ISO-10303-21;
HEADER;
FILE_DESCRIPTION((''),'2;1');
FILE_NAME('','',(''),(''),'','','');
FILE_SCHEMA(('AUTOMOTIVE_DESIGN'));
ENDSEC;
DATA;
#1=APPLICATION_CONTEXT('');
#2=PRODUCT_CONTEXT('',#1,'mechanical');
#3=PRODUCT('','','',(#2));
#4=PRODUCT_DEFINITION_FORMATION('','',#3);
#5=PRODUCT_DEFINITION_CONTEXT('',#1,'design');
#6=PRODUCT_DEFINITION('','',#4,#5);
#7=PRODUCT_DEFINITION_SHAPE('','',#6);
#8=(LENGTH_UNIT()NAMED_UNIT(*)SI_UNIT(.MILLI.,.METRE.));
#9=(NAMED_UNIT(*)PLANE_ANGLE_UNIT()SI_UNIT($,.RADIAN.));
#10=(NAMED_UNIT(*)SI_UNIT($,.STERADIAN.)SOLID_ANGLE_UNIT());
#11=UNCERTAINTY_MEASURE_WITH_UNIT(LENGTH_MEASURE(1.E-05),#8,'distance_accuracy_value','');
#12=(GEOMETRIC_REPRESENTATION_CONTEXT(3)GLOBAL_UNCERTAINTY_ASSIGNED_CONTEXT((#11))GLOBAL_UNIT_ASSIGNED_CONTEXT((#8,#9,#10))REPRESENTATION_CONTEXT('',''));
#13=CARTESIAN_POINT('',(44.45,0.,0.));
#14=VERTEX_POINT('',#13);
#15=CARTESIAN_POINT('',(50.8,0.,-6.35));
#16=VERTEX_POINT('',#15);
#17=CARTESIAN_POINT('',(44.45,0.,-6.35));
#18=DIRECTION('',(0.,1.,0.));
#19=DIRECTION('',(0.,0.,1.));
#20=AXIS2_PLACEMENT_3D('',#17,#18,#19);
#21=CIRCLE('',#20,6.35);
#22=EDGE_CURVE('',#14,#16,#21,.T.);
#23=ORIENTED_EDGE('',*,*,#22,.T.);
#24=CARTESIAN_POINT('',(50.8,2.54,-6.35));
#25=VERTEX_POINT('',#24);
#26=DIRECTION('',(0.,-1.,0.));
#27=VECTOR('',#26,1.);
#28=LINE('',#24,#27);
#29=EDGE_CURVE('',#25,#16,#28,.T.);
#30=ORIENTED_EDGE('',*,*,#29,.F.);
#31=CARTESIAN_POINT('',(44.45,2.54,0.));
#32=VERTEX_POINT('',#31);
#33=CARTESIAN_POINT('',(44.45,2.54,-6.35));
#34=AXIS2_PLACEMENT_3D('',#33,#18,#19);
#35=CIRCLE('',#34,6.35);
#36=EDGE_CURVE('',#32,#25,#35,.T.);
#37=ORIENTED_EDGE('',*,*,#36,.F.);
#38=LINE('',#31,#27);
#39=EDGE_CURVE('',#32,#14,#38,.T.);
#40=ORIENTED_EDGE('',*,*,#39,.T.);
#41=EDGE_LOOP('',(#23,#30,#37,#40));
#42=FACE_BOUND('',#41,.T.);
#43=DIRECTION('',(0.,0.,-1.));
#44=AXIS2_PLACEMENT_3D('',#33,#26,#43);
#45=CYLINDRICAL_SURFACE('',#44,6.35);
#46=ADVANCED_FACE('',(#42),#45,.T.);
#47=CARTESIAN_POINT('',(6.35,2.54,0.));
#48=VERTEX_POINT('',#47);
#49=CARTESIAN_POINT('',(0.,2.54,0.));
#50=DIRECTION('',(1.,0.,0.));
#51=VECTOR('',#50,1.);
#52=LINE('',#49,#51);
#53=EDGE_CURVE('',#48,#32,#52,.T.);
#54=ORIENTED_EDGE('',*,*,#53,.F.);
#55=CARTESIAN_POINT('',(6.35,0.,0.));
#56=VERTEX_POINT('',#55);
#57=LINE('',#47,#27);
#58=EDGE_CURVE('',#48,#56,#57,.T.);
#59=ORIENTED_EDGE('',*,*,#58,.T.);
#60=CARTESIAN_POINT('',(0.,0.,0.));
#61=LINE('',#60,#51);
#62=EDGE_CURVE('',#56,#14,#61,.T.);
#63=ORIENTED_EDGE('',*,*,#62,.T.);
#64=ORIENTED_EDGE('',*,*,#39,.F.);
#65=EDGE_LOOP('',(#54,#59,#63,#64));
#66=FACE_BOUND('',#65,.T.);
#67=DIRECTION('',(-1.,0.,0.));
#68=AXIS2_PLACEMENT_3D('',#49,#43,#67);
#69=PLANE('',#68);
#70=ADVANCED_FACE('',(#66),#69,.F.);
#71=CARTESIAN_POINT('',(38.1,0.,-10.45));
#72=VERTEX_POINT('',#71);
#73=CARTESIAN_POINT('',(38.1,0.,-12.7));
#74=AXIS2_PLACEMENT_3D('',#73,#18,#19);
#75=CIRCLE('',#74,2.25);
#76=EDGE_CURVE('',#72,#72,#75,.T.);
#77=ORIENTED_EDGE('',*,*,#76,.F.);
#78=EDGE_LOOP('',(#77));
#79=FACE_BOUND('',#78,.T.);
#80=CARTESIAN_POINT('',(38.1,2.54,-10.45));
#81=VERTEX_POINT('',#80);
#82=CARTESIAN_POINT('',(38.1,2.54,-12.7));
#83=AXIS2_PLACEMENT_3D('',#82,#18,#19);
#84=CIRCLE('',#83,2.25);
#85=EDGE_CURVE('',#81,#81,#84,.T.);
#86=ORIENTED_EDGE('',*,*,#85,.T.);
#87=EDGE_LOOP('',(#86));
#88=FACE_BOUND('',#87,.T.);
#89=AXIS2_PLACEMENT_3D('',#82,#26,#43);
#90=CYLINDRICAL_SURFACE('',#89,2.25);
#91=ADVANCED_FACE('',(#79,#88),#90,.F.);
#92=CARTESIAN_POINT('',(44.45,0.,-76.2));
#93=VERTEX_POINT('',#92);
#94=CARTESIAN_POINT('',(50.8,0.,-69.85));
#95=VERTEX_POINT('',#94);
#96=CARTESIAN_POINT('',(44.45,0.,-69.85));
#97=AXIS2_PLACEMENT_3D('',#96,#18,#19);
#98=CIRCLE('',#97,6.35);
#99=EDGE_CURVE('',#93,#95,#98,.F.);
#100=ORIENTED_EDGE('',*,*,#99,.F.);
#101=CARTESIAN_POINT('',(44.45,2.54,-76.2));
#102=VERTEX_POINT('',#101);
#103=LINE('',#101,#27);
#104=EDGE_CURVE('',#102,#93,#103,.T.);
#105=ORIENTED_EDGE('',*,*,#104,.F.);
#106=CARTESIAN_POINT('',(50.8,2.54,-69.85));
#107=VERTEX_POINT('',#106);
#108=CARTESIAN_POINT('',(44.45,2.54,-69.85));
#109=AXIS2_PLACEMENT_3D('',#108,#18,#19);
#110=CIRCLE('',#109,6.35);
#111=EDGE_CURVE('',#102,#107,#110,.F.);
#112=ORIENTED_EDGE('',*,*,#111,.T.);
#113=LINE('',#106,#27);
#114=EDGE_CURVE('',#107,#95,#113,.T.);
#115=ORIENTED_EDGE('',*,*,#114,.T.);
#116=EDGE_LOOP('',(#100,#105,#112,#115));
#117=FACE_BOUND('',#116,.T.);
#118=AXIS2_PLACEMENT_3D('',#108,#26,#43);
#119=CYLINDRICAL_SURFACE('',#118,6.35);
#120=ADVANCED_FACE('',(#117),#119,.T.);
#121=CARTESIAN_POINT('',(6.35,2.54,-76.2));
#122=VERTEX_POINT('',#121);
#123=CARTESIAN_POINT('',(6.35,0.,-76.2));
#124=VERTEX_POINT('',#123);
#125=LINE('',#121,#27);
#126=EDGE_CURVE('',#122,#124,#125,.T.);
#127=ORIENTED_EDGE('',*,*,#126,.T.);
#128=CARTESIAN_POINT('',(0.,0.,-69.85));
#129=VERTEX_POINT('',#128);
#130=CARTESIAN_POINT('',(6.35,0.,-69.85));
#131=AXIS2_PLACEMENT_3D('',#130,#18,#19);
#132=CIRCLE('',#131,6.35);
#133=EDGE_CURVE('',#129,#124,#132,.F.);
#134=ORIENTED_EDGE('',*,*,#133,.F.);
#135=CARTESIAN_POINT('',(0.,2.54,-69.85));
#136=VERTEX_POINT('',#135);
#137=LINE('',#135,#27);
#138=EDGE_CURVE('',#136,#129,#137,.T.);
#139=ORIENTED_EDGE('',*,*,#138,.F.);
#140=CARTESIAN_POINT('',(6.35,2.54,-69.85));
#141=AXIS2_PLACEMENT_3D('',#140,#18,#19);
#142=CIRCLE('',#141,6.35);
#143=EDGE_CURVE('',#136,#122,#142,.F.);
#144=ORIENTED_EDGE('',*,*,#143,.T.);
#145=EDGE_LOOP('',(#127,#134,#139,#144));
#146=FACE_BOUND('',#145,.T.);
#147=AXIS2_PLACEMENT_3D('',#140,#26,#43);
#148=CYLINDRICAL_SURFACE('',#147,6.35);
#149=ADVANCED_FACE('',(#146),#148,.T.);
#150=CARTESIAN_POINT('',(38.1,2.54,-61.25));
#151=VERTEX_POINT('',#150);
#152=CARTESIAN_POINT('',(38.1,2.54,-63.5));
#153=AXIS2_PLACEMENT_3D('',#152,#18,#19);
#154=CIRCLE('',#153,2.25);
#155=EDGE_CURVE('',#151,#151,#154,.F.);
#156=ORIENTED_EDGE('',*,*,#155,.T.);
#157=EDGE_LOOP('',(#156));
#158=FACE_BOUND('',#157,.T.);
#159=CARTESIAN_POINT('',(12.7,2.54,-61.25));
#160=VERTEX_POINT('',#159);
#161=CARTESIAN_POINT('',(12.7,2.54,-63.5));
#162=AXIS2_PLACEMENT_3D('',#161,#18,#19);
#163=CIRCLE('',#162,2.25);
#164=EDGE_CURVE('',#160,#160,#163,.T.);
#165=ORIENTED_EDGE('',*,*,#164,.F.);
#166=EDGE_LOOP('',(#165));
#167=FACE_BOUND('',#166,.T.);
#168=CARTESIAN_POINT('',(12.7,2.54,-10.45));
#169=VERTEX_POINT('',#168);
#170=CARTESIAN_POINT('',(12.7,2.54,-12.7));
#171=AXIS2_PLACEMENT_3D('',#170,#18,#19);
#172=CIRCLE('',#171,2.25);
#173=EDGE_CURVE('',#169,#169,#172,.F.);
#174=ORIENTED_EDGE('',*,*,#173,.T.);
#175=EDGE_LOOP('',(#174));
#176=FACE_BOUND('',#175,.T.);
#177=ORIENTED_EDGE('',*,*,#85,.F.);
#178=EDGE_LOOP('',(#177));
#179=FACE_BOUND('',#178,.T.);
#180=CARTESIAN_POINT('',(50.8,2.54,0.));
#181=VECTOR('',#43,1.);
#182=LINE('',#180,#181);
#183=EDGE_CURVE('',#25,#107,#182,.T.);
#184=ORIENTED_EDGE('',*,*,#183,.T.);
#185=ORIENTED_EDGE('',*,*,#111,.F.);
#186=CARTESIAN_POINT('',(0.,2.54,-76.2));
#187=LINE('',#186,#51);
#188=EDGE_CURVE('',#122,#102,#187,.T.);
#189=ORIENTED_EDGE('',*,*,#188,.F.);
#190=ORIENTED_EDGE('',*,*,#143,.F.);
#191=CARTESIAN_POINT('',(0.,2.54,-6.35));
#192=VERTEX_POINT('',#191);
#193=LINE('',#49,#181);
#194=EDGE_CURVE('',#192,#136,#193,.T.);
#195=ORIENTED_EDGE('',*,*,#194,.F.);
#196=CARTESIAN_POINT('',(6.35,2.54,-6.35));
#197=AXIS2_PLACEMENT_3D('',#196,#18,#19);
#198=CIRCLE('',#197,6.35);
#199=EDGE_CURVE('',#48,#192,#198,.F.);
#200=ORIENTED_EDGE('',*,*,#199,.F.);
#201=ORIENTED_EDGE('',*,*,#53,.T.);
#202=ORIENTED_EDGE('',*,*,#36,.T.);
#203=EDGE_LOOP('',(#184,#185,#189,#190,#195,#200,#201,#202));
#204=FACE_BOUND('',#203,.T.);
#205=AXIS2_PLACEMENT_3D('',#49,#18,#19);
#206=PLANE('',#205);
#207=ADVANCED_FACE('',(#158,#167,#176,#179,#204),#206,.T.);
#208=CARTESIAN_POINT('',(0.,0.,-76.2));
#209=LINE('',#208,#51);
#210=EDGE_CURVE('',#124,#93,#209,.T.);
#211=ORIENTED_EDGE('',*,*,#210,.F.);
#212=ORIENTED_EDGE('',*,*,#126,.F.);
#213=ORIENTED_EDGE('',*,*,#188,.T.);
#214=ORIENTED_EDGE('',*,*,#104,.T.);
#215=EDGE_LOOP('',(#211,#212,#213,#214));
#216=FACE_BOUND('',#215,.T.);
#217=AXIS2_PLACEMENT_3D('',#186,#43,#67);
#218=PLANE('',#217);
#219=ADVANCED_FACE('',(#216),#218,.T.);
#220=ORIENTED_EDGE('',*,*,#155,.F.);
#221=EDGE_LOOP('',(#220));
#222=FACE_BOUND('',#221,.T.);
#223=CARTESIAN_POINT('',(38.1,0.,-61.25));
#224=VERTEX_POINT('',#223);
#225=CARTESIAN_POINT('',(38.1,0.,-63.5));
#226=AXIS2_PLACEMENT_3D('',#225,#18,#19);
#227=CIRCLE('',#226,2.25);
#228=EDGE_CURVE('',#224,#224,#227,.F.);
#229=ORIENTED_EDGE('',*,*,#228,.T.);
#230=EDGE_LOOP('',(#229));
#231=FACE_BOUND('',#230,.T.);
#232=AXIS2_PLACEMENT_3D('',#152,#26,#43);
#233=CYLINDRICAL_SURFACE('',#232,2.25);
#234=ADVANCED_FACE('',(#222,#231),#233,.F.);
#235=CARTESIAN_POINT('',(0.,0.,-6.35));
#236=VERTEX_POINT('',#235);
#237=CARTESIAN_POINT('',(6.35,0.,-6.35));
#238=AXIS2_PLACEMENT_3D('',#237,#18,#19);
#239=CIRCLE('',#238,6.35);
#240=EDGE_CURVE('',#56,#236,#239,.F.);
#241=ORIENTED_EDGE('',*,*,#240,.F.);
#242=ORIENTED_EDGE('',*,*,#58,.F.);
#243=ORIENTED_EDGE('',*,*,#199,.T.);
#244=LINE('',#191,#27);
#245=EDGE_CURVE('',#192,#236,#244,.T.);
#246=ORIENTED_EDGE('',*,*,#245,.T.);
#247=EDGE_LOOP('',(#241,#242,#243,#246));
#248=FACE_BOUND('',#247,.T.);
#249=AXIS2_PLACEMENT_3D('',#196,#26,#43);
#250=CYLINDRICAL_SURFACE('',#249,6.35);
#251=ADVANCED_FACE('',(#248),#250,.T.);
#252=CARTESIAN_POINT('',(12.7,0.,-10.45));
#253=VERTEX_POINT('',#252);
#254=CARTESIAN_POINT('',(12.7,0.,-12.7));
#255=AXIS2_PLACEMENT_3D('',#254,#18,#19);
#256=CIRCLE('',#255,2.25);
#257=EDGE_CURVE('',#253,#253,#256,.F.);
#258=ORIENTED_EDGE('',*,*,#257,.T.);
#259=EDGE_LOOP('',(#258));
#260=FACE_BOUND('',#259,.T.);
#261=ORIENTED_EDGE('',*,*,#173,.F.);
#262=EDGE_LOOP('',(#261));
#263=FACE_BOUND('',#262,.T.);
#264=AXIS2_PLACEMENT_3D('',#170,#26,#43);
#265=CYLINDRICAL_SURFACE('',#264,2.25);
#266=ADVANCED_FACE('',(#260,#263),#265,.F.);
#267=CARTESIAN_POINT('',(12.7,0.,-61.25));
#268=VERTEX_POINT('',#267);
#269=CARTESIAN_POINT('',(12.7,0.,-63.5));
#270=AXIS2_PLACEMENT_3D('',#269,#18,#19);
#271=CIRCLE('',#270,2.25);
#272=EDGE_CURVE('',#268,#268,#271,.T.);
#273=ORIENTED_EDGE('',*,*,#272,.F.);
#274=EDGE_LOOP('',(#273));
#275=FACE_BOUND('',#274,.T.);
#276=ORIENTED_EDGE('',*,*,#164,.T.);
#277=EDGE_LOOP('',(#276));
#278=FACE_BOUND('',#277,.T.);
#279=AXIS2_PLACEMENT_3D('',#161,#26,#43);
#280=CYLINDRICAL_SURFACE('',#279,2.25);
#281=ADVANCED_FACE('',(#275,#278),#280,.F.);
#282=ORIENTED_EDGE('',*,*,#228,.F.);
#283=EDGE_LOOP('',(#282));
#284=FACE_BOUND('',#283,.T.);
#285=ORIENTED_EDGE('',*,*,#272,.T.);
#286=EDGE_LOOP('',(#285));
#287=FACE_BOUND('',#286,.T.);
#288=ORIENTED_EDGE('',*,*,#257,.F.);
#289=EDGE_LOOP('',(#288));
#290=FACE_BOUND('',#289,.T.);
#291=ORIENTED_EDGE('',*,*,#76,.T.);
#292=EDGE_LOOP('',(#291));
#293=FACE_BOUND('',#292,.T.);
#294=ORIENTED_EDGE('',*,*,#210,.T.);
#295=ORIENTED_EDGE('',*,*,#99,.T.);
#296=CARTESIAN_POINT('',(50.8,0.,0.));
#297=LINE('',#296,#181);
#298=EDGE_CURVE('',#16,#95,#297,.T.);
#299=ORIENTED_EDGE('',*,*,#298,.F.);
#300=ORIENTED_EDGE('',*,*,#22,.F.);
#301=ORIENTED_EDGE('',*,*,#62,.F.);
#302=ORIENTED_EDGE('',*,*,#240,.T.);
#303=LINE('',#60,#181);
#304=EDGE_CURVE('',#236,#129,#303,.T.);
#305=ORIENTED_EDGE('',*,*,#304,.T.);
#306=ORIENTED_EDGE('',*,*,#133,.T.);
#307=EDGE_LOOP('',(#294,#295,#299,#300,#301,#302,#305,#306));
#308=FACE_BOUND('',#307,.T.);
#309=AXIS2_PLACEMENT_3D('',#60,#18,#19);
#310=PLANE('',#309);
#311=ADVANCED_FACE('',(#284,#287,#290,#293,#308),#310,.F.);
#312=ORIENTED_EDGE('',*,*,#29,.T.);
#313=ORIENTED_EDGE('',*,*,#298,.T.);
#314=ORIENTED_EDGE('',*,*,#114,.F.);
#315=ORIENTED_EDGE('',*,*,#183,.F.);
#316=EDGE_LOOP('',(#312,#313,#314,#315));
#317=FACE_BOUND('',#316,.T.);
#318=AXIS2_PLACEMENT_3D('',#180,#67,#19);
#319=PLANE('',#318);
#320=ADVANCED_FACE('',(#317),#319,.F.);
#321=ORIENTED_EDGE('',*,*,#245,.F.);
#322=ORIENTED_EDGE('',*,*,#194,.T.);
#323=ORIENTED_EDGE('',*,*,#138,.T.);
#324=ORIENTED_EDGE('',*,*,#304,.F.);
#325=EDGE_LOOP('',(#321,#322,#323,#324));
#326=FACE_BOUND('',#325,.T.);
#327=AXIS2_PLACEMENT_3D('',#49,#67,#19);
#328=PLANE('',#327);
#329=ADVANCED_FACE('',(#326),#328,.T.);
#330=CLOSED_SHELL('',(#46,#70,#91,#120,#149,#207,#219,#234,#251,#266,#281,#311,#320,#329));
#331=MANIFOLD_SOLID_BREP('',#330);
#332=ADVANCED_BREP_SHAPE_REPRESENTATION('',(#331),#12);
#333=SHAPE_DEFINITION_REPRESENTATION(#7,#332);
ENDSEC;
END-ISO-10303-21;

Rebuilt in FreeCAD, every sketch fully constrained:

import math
import FreeCAD as App
import Part
import Sketcher
from FreeCAD import Vector
Q = App.Units.Quantity

doc = App.newDocument("Part")
body = doc.addObject("PartDesign::Body", "Body")

# Sketch on XZ plane
sketch1 = body.newObject("Sketcher::SketchObject", "Sketch")
sketch1.AttachmentSupport = (doc.getObject("XZ_Plane"), [""])
sketch1.MapMode = "FlatFace"
sketch1.addGeometry([
    Part.LineSegment(Vector(6.3, 0, 0), Vector(44.5, 0, 0)),  # 0
    Part.ArcOfCircle(Part.Circle(Vector(44.5, -6.3, 0), Vector(0, 0, 1), 6.3), math.radians(0), math.radians(90)),  # 1
    Part.LineSegment(Vector(50.8, -6.3, 0), Vector(50.8, -69.8, 0)),  # 2
    Part.ArcOfCircle(Part.Circle(Vector(44.5, -69.9, 0), Vector(0, 0, 1), 6.3), math.radians(-90), math.radians(0)),  # 3
    Part.LineSegment(Vector(44.5, -76.2, 0), Vector(6.3, -76.2, 0)),  # 4
    Part.ArcOfCircle(Part.Circle(Vector(6.3, -69.9, 0), Vector(0, 0, 1), 6.3), math.radians(180), math.radians(270)),  # 5
    Part.LineSegment(Vector(0, -69.8, 0), Vector(0, -6.3, 0)),  # 6
    Part.ArcOfCircle(Part.Circle(Vector(6.3, -6.3, 0), Vector(0, 0, 1), 6.3), math.radians(90), math.radians(180)),  # 7
    Part.Circle(Vector(12.7, -12.7, 0), Vector(0, 0, 1), 2.2),  # 8
    Part.Circle(Vector(38.1, -12.7, 0), Vector(0, 0, 1), 2.2),  # 9
    Part.Circle(Vector(12.7, -63.5, 0), Vector(0, 0, 1), 2.2),  # 10
    Part.Circle(Vector(38.1, -63.5, 0), Vector(0, 0, 1), 2.2),  # 11
], False)
sketch1.addConstraint([
    Sketcher.Constraint("Tangent", 0, 2, 1, 2),
    Sketcher.Constraint("Tangent", 1, 1, 2, 1),
    Sketcher.Constraint("Tangent", 2, 2, 3, 2),
    Sketcher.Constraint("Tangent", 3, 1, 4, 1),
    Sketcher.Constraint("Tangent", 4, 2, 5, 2),
    Sketcher.Constraint("Tangent", 5, 1, 6, 1),
    Sketcher.Constraint("Tangent", 6, 2, 7, 2),
    Sketcher.Constraint("Tangent", 7, 1, 0, 1),
    Sketcher.Constraint("Horizontal", 0),
    Sketcher.Constraint("Vertical", 2),
    Sketcher.Constraint("Horizontal", 4),
    Sketcher.Constraint("Vertical", 6),
    Sketcher.Constraint("Equal", 1, 3),
    Sketcher.Constraint("Equal", 3, 5),
    Sketcher.Constraint("Equal", 5, 7),
    Sketcher.Constraint("Equal", 8, 9),
    Sketcher.Constraint("Equal", 9, 10),
    Sketcher.Constraint("Equal", 10, 11),
    Sketcher.Constraint("PointOnObject", 0, 2, -1),
    Sketcher.Constraint("PointOnObject", 5, 1, -2),
    Sketcher.Constraint("Horizontal", 8, 3, 9, 3),
    Sketcher.Constraint("Horizontal", 10, 3, 11, 3),
    Sketcher.Constraint("Vertical", 8, 3, 10, 3),
    Sketcher.Constraint("Vertical", 9, 3, 11, 3),
    Sketcher.Constraint("Radius", 1, Q("0.25 in")),
    Sketcher.Constraint("DistanceX", 0, 1, 0, 2, Q("1.5 in")),
    Sketcher.Constraint("DistanceY", 2, 2, 2, 1, Q("2.5 in")),
    Sketcher.Constraint("DistanceX", 8, 3, 9, 3, Q("1 in")),
    Sketcher.Constraint("DistanceY", 10, 3, 8, 3, Q("2 in")),
    Sketcher.Constraint("DistanceX", -1, 1, 8, 3, Q("0.5 in")),
    Sketcher.Constraint("DistanceY", 8, 3, -1, 1, Q("0.5 in")),
    Sketcher.Constraint("Diameter", 8, Q("4.5 mm")),
])
pad1 = body.newObject("PartDesign::Pad", "Pad")
pad1.Profile = sketch1
pad1.Length = Q("0.1 in")
pad1.Reversed = True

doc.recompute()
